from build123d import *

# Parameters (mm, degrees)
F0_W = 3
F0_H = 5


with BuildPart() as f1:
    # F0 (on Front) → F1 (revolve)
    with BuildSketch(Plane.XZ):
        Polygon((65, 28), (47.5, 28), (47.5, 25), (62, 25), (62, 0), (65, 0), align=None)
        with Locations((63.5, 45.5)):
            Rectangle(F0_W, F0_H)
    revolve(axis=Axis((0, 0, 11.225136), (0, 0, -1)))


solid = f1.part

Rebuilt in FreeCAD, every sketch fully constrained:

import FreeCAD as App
import Part
import Sketcher
from FreeCAD import Vector
Q = App.Units.Quantity


def add_polygon(sketch, points):
    """Adds a closed chain of lines whose ends are joined by coincident constraints."""
    first, n = sketch.GeometryCount, len(points)
    for a, b in zip(points, points[1:] + points[:1]):
        sketch.addGeometry(Part.LineSegment(App.Vector(*a, 0), App.Vector(*b, 0)), False)
    for i in range(n):
        sketch.addConstraint(Sketcher.Constraint("Coincident", first + i, 2, first + (i + 1) % n, 1))

doc = App.newDocument("Part")
body = doc.addObject("PartDesign::Body", "Body")
body.AllowCompound = True

# Sketch on XZ plane
sketch1 = doc.addObject("Sketcher::SketchObject", "Sketch")
body.addObject(sketch1)
sketch1.AttachmentSupport = (doc.XZ_Plane, [""])
sketch1.MapMode = "FlatFace"
add_polygon(sketch1, [(65, 28), (47.5, 28), (47.5, 25), (62, 25), (62, 0), (65, 0)])  # lines 0-5
add_polygon(sketch1, [(62, 48), (62, 43), (65, 43), (65, 48)])  # lines 6-9
sketch1.addConstraint(Sketcher.Constraint("Horizontal", 0))
sketch1.addConstraint(Sketcher.Constraint("Vertical", 1))
sketch1.addConstraint(Sketcher.Constraint("Horizontal", 2))
sketch1.addConstraint(Sketcher.Constraint("Vertical", 3))
sketch1.addConstraint(Sketcher.Constraint("Horizontal", 4))
sketch1.addConstraint(Sketcher.Constraint("Vertical", 5))
sketch1.addConstraint(Sketcher.Constraint("Vertical", 6))
sketch1.addConstraint(Sketcher.Constraint("Horizontal", 7))
sketch1.addConstraint(Sketcher.Constraint("Vertical", 8))
sketch1.addConstraint(Sketcher.Constraint("Horizontal", 9))
sketch1.addConstraint(Sketcher.Constraint("PointOnObject", 3, 2, -1))
sketch1.addConstraint(Sketcher.Constraint("Vertical", 3, 2, 6, 2))
sketch1.addConstraint(Sketcher.Constraint("Vertical", 5, 2, 7, 2))
sketch1.addConstraint(Sketcher.Constraint("Equal", 9, 1))
sketch1.addConstraint(Sketcher.Constraint("DistanceX", 4, 1, 4, 2, Q("3 mm")))
sketch1.addConstraint(Sketcher.Constraint("DistanceY", 3, 2, 3, 1, Q("25 mm")))
sketch1.addConstraint(Sketcher.Constraint("DistanceY", 6, 2, 6, 1, Q("5 mm")))
sketch1.addConstraint(Sketcher.Constraint("DistanceX", 0, 2, 0, 1, Q("17.5 mm")))
sketch1.addConstraint(Sketcher.Constraint("DistanceX", -1, 1, 2, 2, Q("62 mm")))
sketch1.addConstraint(Sketcher.Constraint("DistanceY", -1, 1, 6, 2, Q("43 mm")))
revolution = doc.addObject("PartDesign::Revolution", "Revolution")
body.addObject(revolution)
revolution.Profile = sketch1
revolution.ReferenceAxis = (sketch1, ["V_Axis"])
revolution.Angle = 360

doc.recompute()
